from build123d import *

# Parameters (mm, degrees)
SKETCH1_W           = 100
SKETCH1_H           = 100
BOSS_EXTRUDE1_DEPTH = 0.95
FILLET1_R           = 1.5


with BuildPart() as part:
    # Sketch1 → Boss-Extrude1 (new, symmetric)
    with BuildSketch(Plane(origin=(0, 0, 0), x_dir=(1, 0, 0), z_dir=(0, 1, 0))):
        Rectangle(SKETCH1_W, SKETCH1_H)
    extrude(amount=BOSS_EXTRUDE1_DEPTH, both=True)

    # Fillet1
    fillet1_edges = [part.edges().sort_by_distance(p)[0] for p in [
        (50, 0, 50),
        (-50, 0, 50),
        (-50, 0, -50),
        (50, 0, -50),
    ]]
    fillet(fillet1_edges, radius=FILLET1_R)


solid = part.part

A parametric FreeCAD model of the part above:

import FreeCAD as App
import Part
import Sketcher


def edges_at(feature, points):
    """Names of the edges that pass closest to the given points."""
    edges = feature.Shape.Edges
    near = lambda p: min(range(len(edges)), key=lambda i: edges[i].distToShape(Part.Vertex(*p))[0])
    return sorted({f"Edge{near(p) + 1}" for p in points})


def add_polygon(sketch, points):
    """Adds a closed chain of lines whose ends are joined by coincident constraints."""
    first, n = sketch.GeometryCount, len(points)
    for a, b in zip(points, points[1:] + points[:1]):
        sketch.addGeometry(Part.LineSegment(App.Vector(*a, 0), App.Vector(*b, 0)), False)
    for i in range(n):
        sketch.addConstraint(Sketcher.Constraint("Coincident", first + i, 2, first + (i + 1) % n, 1))

doc = App.newDocument("Part")
body = doc.addObject("PartDesign::Body", "Body")

sketch1 = body.newObject("Sketcher::SketchObject", "Sketch")
sketch1.AttachmentSupport = (doc.getObject("XZ_Plane"), [""])
sketch1.MapMode = "FlatFace"
add_polygon(sketch1, [(-50, -50), (-50, 50), (50, 50), (50, -50)])
sketch1.addConstraint([
    Sketcher.Constraint("Vertical", 0),
    Sketcher.Constraint("Horizontal", 1),
    Sketcher.Constraint("Vertical", 2),
    Sketcher.Constraint("Horizontal", 3),
    Sketcher.Constraint("Symmetric", 0, 2, 2, 2, -1, 1),
    Sketcher.Constraint("Equal", 3, 0),
    Sketcher.Constraint("DistanceX", 1, 1, 1, 2, 100.0),
])
pad1 = body.newObject("PartDesign::Pad", "Pad")
pad1.Profile = sketch1
pad1.Length = 1.9
pad1.Midplane = True
doc.recompute()

fillet = body.newObject("PartDesign::Fillet", "Fillet")
fillet.Base = (pad1, edges_at(pad1, [
    (50, 0, 50),
    (-50, 0, 50),
    (-50, 0, -50),
    (50, 0, -50),
]))
fillet.Radius = 1.5

doc.recompute()
